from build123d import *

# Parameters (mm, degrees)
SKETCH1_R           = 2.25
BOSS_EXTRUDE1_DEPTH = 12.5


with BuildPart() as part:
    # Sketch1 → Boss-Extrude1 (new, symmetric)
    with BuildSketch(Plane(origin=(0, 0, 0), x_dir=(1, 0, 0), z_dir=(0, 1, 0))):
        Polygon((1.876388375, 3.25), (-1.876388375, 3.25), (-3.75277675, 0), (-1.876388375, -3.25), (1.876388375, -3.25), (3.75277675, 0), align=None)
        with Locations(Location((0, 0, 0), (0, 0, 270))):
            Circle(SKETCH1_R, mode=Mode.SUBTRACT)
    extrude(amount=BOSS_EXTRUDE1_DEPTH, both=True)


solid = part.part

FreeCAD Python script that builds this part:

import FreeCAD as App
import Part
import Sketcher
from FreeCAD import Vector
Q = App.Units.Quantity

doc = App.newDocument("Part")
params = doc.addObject("Spreadsheet::Sheet", "Params")
for row, (alias, value) in enumerate([
    ("sketch1_diameter", "4.5 mm"),
    ("pad1_length", "25 mm"),
], start=1):
    params.set(f"A{row}", alias)
    params.set(f"B{row}", "=" + value)
    params.setAlias(f"B{row}", alias)

body = doc.addObject("PartDesign::Body", "Body")

sketch1 = body.newObject("Sketcher::SketchObject", "Sketch")
sketch1.AttachmentSupport = (doc.getObject("XZ_Plane"), [""])
sketch1.MapMode = "FlatFace"
sketch1.addGeometry(Part.LineSegment(Vector(1.876388, -3.25, 0), Vector(-1.876388, -3.25, 0)), False)
sketch1.addGeometry(Part.LineSegment(Vector(-1.876388, -3.25, 0), Vector(-3.752777, 0, 0)), False)
sketch1.addGeometry(Part.LineSegment(Vector(-3.752777, 0, 0), Vector(-1.876388, 3.25, 0)), False)
sketch1.addGeometry(Part.LineSegment(Vector(-1.876388, 3.25, 0), Vector(1.876388, 3.25, 0)), False)
sketch1.addGeometry(Part.LineSegment(Vector(1.876388, 3.25, 0), Vector(3.752777, 0, 0)), False)
sketch1.addGeometry(Part.LineSegment(Vector(3.752777, 0, 0), Vector(1.876388, -3.25, 0)), False)
sketch1.addGeometry(Part.Circle(Vector(0, 0, 0), Vector(0, 0, 1), 2.25), False)
sketch1.addConstraint(Sketcher.Constraint("Coincident", 0, 2, 1, 1))
sketch1.addConstraint(Sketcher.Constraint("Coincident", 1, 2, 2, 1))
sketch1.addConstraint(Sketcher.Constraint("Coincident", 2, 2, 3, 1))
sketch1.addConstraint(Sketcher.Constraint("Coincident", 3, 2, 4, 1))
sketch1.addConstraint(Sketcher.Constraint("Coincident", 4, 2, 5, 1))
sketch1.addConstraint(Sketcher.Constraint("Coincident", 5, 2, 0, 1))
sketch1.addConstraint(Sketcher.Constraint("Horizontal", 0))
sketch1.addConstraint(Sketcher.Constraint("Horizontal", 3))
sketch1.addConstraint(Sketcher.Constraint("Coincident", 6, 3, -1, 1))
sketch1.addConstraint(Sketcher.Constraint("Symmetric", 0, 2, 3, 2, -1, 1))
sketch1.addConstraint(Sketcher.Constraint("Symmetric", 1, 2, 4, 2, -1, 1))
sketch1.addConstraint(Sketcher.Constraint("PointOnObject", 1, 2, -1))
sketch1.addConstraint(Sketcher.Constraint("Parallel", 2, 5))
sketch1.addConstraint(Sketcher.Constraint("Vertical", 0, 2, 2, 2))
sketch1.addConstraint(Sketcher.Constraint("Diameter", 6, Q("4.5 mm")))
sketch1.addConstraint(Sketcher.Constraint("Angle", 1, Q("120 deg")))
sketch1.addConstraint(Sketcher.Constraint("DistanceY", 0, 2, 2, 2, Q("6.5 mm")))
sketch1.addConstraint(Sketcher.Constraint("DistanceX", 0, 2, 0, 1, Q("3.752777 mm")))
sketch1.setExpression("Constraints[14]", "Params.sketch1_diameter")
pad1 = body.newObject("PartDesign::Pad", "Pad")
pad1.Profile = sketch1
pad1.setExpression("Length", "Params.pad1_length")
pad1.Midplane = True

doc.recompute()
